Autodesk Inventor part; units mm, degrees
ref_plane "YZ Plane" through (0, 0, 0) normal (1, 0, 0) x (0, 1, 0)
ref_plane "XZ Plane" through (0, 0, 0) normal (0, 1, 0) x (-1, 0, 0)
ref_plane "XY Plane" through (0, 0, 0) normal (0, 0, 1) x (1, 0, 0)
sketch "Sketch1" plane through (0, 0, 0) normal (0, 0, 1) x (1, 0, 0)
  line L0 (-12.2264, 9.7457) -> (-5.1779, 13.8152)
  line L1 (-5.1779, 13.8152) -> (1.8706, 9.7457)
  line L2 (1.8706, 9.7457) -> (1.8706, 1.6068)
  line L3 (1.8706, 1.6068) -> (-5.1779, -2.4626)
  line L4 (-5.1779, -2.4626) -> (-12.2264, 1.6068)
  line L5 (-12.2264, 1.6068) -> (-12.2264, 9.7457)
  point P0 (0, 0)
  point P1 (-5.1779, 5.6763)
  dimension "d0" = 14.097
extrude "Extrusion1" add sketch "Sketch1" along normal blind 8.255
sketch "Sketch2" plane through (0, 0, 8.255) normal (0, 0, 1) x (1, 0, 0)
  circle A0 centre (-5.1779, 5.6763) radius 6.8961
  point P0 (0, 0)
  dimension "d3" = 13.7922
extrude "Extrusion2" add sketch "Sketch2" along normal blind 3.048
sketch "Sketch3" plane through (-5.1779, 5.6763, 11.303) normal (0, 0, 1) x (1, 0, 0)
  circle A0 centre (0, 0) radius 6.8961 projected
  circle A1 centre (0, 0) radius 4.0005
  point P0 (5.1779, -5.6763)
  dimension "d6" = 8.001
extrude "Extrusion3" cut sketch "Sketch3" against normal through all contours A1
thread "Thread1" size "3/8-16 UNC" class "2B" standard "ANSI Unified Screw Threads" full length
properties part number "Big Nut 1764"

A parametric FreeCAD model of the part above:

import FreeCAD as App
import Part
import Sketcher
from FreeCAD import Vector
Q = App.Units.Quantity


def add_polygon(sketch, points):
    """Adds a closed chain of lines whose ends are joined by coincident constraints."""
    first, n = sketch.GeometryCount, len(points)
    for a, b in zip(points, points[1:] + points[:1]):
        sketch.addGeometry(Part.LineSegment(App.Vector(*a, 0), App.Vector(*b, 0)), False)
    for i in range(n):
        sketch.addConstraint(Sketcher.Constraint("Coincident", first + i, 2, first + (i + 1) % n, 1))

doc = App.newDocument("Part")
body = doc.addObject("PartDesign::Body", "Body")

# Sketch on XY plane
sketch1 = doc.addObject("Sketcher::SketchObject", "Sketch")
body.addObject(sketch1)
sketch1.AttachmentSupport = (doc.XY_Plane, [""])
sketch1.MapMode = "FlatFace"
add_polygon(sketch1, [(-5, 14), (-12, 10), (-12, 2), (-5, -2), (2, 2), (2, 10)])  # lines 0-5
sketch1.addConstraint([
    Sketcher.Constraint("Vertical", 1),
    Sketcher.Constraint("Vertical", 4),
    Sketcher.Constraint("Parallel", 0, 3),
    Sketcher.Constraint("Parallel", 2, 5),
    Sketcher.Constraint("Horizontal", 1, 2, 3, 2),
    Sketcher.Constraint("Horizontal", 0, 2, 4, 2),
    Sketcher.Constraint("Vertical", 2, 2, 5, 2),
    Sketcher.Constraint("Angle", 0, Q("-149.9997 deg")),
    Sketcher.Constraint("DistanceX", 1, 2, 3, 2, Q("0.555 in")),
    Sketcher.Constraint("DistanceY", 1, 2, 1, 1, 8.139),
    Sketcher.Constraint("DistanceY", -1, 1, 0, 2, Q("0.3837 in")),
    Sketcher.Constraint("DistanceX", 0, 2, -1, 1, 12.2264),
])
pad1 = doc.addObject("PartDesign::Pad", "Pad")
body.addObject(pad1)
pad1.Profile = sketch1
pad1.Length = Q("0.325 in")

# Sketch on XY plane
sketch2 = doc.addObject("Sketcher::SketchObject", "Sketch001")
body.addObject(sketch2)
sketch2.AttachmentSupport = (doc.XY_Plane, [""])
sketch2.MapMode = "FlatFace"
sketch2.AttachmentOffset = App.Placement(Vector(0, 0, 0.325 * 25.4), App.Rotation())
sketch2.addGeometry(Part.Circle(Vector(-5, 6, 0), Vector(0, 0, 1), 7), False)
sketch2.addConstraint([
    Sketcher.Constraint("Diameter", 0, Q("0.543 in")),
    Sketcher.Constraint("DistanceX", 0, 3, -1, 1, 5.178),
    Sketcher.Constraint("DistanceY", -1, 1, 0, 3, 5.6763),
])
pad2 = doc.addObject("PartDesign::Pad", "Pad001")
body.addObject(pad2)
pad2.Profile = sketch2
pad2.Length = Q("0.12 in")

# Sketch on XY plane
sketch3 = doc.addObject("Sketcher::SketchObject", "Sketch002")
body.addObject(sketch3)
sketch3.AttachmentSupport = (doc.XY_Plane, [""])
sketch3.MapMode = "FlatFace"
sketch3.AttachmentOffset = App.Placement(Vector(0, 0, 0.445 * 25.4), App.Rotation())
sketch3.addGeometry(Part.Circle(Vector(-5.2, 5.7, 0), Vector(0, 0, 1), 4), False)
sketch3.addConstraint([
    Sketcher.Constraint("Diameter", 0, Q("0.315 in")),
    Sketcher.Constraint("DistanceX", 0, 3, -1, 1, 5.178),
    Sketcher.Constraint("DistanceY", -1, 1, 0, 3, 5.6763),
])
pocket1 = doc.addObject("PartDesign::Pocket", "Pocket")
body.addObject(pocket1)
pocket1.Profile = sketch3
pocket1.Type = "ThroughAll"

doc.recompute()
